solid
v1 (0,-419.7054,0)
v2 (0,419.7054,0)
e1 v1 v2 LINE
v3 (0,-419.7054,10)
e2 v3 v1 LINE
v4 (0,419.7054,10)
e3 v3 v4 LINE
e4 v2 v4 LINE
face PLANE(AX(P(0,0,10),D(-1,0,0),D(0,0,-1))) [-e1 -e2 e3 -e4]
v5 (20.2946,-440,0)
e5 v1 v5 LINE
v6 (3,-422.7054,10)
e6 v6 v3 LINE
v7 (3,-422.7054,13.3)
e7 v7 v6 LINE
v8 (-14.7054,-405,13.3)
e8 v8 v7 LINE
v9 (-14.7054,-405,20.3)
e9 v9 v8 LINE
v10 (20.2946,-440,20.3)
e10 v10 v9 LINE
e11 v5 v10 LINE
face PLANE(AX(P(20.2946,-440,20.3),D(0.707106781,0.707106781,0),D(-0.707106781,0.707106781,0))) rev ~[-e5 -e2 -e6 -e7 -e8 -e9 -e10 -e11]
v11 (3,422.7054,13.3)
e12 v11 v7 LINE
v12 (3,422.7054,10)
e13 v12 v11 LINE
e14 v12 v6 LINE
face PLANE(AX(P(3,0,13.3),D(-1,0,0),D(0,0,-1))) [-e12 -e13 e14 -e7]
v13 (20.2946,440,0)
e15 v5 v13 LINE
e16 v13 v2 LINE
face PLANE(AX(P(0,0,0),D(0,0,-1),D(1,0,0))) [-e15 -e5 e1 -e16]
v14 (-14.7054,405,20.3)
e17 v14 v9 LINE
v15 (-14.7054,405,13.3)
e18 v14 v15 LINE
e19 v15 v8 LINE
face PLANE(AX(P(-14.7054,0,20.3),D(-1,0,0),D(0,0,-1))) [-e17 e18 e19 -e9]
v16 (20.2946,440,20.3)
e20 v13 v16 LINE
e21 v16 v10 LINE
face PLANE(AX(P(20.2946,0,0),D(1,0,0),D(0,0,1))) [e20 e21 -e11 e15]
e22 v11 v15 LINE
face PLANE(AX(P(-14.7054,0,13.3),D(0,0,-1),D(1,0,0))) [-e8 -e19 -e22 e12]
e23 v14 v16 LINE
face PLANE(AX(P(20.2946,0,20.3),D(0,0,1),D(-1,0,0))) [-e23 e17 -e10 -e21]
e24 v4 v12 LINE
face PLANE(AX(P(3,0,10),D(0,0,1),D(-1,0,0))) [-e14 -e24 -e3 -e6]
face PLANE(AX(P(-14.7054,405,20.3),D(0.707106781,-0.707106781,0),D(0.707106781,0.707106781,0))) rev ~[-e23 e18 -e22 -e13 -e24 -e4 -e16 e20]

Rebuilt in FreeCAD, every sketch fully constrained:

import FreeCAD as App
import Part
import Sketcher

V = App.Vector

doc = App.newDocument("Part")
body = doc.addObject("PartDesign::Body", "Body")

# Sketch on XZ plane
sketch1 = body.newObject("Sketcher::SketchObject", "Sketch")
sketch1.AttachmentSupport = (doc.getObject("XZ_Plane"), [""])
sketch1.MapMode = "FlatFace"
sketch1.addGeometry([
    Part.LineSegment(V(20.3, 0, 0), V(20.3, 20.3, 0)),  # 0
    Part.LineSegment(V(20.3, 20.3, 0), V(-14.7, 20.3, 0)),  # 1
    Part.LineSegment(V(-14.7, 20.3, 0), V(-14.7, 13.3, 0)),  # 2
    Part.LineSegment(V(-14.7, 13.3, 0), V(3, 13.3, 0)),  # 3
    Part.LineSegment(V(3, 13.3, 0), V(3, 10, 0)),  # 4
    Part.LineSegment(V(3, 10, 0), V(0, 10, 0)),  # 5
    Part.LineSegment(V(0, 10, 0), V(0, 0, 0)),  # 6
    Part.LineSegment(V(0, 0, 0), V(20.3, 0, 0)),  # 7
], False)
sketch1.addConstraint([
    Sketcher.Constraint("Coincident", 0, 2, 1, 1),
    Sketcher.Constraint("Coincident", 1, 2, 2, 1),
    Sketcher.Constraint("Coincident", 2, 2, 3, 1),
    Sketcher.Constraint("Coincident", 3, 2, 4, 1),
    Sketcher.Constraint("Coincident", 4, 2, 5, 1),
    Sketcher.Constraint("Coincident", 5, 2, 6, 1),
    Sketcher.Constraint("Coincident", 6, 2, 7, 1),
    Sketcher.Constraint("Coincident", 7, 2, 0, 1),
    Sketcher.Constraint("Vertical", 0),
    Sketcher.Constraint("Horizontal", 1),
    Sketcher.Constraint("Vertical", 2),
    Sketcher.Constraint("Horizontal", 3),
    Sketcher.Constraint("Vertical", 4),
    Sketcher.Constraint("Horizontal", 5),
    Sketcher.Constraint("Vertical", 6),
    Sketcher.Constraint("Horizontal", 7),
    Sketcher.Constraint("Coincident", 6, 2, -1, 1),
    Sketcher.Constraint("DistanceX", 1, 2, 1, 1, 35.0),
    Sketcher.Constraint("DistanceX", 5, 2, 5, 1, 3.0),
    Sketcher.Constraint("DistanceY", 2, 2, 2, 1, 7.0),
    Sketcher.Constraint("DistanceY", 6, 2, 6, 1, 10.0),
    Sketcher.Constraint("DistanceY", 0, 1, 0, 2, 20.3),
    Sketcher.Constraint("DistanceX", 3, 1, 3, 2, 17.7054),
])
pad1 = body.newObject("PartDesign::Pad", "Pad")
pad1.Profile = sketch1
pad1.Length = 880
pad1.Midplane = True

# Sketch on XY plane
sketch2 = body.newObject("Sketcher::SketchObject", "Sketch001")
sketch2.AttachmentSupport = (doc.getObject("XY_Plane"), [""])
sketch2.MapMode = "FlatFace"
sketch2.AttachmentOffset = App.Placement(V(0, 0, 20.3), App.Rotation())
sketch2.addGeometry([
    Part.LineSegment(V(-15, 405, 0), V(20, 440, 0)),  # 0
    Part.LineSegment(V(20, 440, 0), V(-15, 440, 0)),  # 1
    Part.LineSegment(V(-15, 440, 0), V(-15, 405, 0)),  # 2
    Part.LineSegment(V(-15, -440, 0), V(20, -440, 0)),  # 3
    Part.LineSegment(V(20, -440, 0), V(-15, -405, 0)),  # 4
    Part.LineSegment(V(-15, -405, 0), V(-15, -440, 0)),  # 5
], False)
sketch2.addConstraint([
    Sketcher.Constraint("Coincident", 0, 2, 1, 1),
    Sketcher.Constraint("Coincident", 1, 2, 2, 1),
    Sketcher.Constraint("Coincident", 2, 2, 0, 1),
    Sketcher.Constraint("Coincident", 3, 2, 4, 1),
    Sketcher.Constraint("Coincident", 4, 2, 5, 1),
    Sketcher.Constraint("Coincident", 5, 2, 3, 1),
    Sketcher.Constraint("Horizontal", 1),
    Sketcher.Constraint("Vertical", 2),
    Sketcher.Constraint("Horizontal", 3),
    Sketcher.Constraint("Vertical", 5),
    Sketcher.Constraint("Symmetric", 0, 2, 3, 2, -1),
    Sketcher.Constraint("Symmetric", 2, 2, 4, 2, -1),
    Sketcher.Constraint("Perpendicular", 0, 4),
    Sketcher.Constraint("DistanceX", 1, 2, 1, 1, 35.0),
    Sketcher.Constraint("DistanceY", -1, 1, 0, 2, 440.0),
    Sketcher.Constraint("DistanceX", -1, 1, 0, 2, 20.2946),
])
pocket1 = body.newObject("PartDesign::Pocket", "Pocket")
pocket1.Profile = sketch2
pocket1.Length = 25.4

doc.recompute()
